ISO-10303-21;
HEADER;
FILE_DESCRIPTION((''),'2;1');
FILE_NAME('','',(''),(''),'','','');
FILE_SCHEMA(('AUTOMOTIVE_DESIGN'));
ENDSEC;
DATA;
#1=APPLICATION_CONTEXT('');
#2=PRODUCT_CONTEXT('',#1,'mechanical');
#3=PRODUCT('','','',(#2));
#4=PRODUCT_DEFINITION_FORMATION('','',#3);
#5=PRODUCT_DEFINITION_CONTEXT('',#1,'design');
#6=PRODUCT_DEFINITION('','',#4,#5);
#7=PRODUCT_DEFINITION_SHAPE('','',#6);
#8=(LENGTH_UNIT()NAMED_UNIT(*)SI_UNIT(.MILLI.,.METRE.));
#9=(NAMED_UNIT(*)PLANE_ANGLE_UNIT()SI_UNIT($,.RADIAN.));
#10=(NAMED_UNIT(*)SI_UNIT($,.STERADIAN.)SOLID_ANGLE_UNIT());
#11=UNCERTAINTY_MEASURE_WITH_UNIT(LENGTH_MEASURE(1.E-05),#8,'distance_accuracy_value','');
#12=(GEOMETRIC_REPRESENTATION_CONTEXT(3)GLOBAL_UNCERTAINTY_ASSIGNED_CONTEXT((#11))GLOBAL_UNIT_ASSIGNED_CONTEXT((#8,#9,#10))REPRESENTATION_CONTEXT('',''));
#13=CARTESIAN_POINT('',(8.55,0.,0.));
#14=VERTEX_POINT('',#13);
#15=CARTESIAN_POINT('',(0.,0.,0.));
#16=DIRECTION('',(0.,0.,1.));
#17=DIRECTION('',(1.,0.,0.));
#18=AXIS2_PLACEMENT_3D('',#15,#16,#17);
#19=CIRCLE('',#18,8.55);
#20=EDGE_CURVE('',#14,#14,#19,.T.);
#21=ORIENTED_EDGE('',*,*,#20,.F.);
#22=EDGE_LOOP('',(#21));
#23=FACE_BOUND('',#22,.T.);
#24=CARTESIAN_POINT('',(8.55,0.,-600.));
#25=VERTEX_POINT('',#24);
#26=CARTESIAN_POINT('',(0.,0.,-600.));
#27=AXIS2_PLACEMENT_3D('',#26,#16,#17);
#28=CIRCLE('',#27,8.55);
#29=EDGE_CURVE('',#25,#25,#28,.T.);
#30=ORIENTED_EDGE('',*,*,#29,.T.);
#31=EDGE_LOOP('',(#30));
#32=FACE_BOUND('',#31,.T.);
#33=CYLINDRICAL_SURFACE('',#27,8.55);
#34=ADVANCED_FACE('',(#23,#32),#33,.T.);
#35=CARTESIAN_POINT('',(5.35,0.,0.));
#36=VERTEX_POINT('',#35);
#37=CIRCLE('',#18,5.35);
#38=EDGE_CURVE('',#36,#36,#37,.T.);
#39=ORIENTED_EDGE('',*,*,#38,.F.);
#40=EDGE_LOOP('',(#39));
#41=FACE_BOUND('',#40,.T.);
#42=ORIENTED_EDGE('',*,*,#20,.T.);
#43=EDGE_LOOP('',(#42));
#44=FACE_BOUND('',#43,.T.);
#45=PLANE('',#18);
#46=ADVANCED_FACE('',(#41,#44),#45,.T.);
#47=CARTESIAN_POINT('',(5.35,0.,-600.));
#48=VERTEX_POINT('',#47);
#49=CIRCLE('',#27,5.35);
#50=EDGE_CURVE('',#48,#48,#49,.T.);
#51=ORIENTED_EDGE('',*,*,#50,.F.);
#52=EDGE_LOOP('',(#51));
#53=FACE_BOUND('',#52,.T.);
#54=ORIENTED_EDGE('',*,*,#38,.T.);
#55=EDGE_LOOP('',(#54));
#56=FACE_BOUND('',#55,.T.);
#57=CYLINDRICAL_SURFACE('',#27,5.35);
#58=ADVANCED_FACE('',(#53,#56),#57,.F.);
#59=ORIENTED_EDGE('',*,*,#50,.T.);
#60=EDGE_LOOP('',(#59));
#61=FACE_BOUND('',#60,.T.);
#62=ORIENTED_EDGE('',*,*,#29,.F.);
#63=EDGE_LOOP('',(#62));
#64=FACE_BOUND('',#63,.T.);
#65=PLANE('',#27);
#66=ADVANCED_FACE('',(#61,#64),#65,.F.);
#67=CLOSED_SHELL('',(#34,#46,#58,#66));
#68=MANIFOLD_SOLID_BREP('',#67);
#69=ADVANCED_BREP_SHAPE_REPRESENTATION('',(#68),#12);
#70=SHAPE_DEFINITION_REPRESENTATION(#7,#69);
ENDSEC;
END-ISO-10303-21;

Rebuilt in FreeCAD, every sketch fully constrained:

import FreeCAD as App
import Part
import Sketcher
from FreeCAD import Vector

doc = App.newDocument("Part")
body = doc.addObject("PartDesign::Body", "Body")

# Sketch on XY plane
sketch1 = body.newObject("Sketcher::SketchObject", "Sketch")
sketch1.AttachmentSupport = (doc.getObject("XY_Plane"), [""])
sketch1.MapMode = "FlatFace"
sketch1.addGeometry(Part.Circle(Vector(0, 0, 0), Vector(0, 0, 1), 9), False)
sketch1.addGeometry(Part.Circle(Vector(0, 0, 0), Vector(0, 0, 1), 5), False)
sketch1.addConstraint(Sketcher.Constraint("Coincident", 0, 3, -1, 1))
sketch1.addConstraint(Sketcher.Constraint("Coincident", 1, 3, -1, 1))
sketch1.addConstraint(Sketcher.Constraint("Diameter", 0, 17.1))
sketch1.addConstraint(Sketcher.Constraint("Diameter", 1, 10.7))
pad1 = body.newObject("PartDesign::Pad", "Pad")
pad1.Profile = sketch1
pad1.Length = 600
pad1.Reversed = True

doc.recompute()
